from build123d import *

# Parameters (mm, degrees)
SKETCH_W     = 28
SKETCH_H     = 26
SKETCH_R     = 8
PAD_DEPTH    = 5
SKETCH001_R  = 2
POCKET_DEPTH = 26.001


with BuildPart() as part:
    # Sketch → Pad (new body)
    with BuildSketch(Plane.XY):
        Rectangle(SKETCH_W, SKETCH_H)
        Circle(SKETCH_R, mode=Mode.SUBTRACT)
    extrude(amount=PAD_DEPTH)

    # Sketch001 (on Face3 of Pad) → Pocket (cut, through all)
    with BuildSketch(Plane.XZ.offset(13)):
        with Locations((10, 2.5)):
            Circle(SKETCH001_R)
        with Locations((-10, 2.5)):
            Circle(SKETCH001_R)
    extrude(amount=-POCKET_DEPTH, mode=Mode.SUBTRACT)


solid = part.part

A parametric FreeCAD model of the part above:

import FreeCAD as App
import Part
import Sketcher

V = App.Vector
Q = App.Units.Quantity

doc = App.newDocument("Part")
params = doc.addObject("Spreadsheet::Sheet", "Params")
for row, (alias, value) in enumerate([
    ("sketch1_diameter", "16 mm"),
    ("sketch1_width", "28 mm"),
    ("sketch1_height", "26 mm"),
    ("pad1_length", "5 mm"),
    ("sketch2_diameter", "4 mm"),
], start=1):
    params.set(f"A{row}", alias)
    params.set(f"B{row}", "=" + value)
    params.setAlias(f"B{row}", alias)

body = doc.addObject("PartDesign::Body", "Body")

# Sketch on XY plane
sketch1 = body.newObject("Sketcher::SketchObject", "Sketch")
sketch1.AttachmentSupport = (doc.getObject("XY_Plane"), [""])
sketch1.MapMode = "FlatFace"
sketch1.addGeometry([
    Part.LineSegment(V(-14, 13, 0), V(-14, -13, 0)),  # 0
    Part.LineSegment(V(-14, -13, 0), V(14, -13, 0)),  # 1
    Part.LineSegment(V(14, -13, 0), V(14, 13, 0)),  # 2
    Part.LineSegment(V(14, 13, 0), V(-14, 13, 0)),  # 3
    Part.Circle(V(0, 0, 0), V(0, 0, 1), 8),  # 4
], False)
sketch1.addConstraint([
    Sketcher.Constraint("Coincident", 0, 2, 1, 1),
    Sketcher.Constraint("Coincident", 1, 2, 2, 1),
    Sketcher.Constraint("Coincident", 2, 2, 3, 1),
    Sketcher.Constraint("Coincident", 3, 2, 0, 1),
    Sketcher.Constraint("Vertical", 0),
    Sketcher.Constraint("Horizontal", 1),
    Sketcher.Constraint("Vertical", 2),
    Sketcher.Constraint("Horizontal", 3),
    Sketcher.Constraint("Coincident", 4, 3, -1, 1),
    Sketcher.Constraint("Symmetric", 0, 2, 2, 2, -1, 1),
    Sketcher.Constraint("Diameter", 4, Q("16 mm")),
    Sketcher.Constraint("DistanceX", 1, 1, 1, 2, Q("28 mm")),
    Sketcher.Constraint("DistanceY", 0, 2, 0, 1, Q("26 mm")),
])
sketch1.setExpression("Constraints[10]", "Params.sketch1_diameter")
sketch1.setExpression("Constraints[11]", "Params.sketch1_width")
sketch1.setExpression("Constraints[12]", "Params.sketch1_height")
pad1 = body.newObject("PartDesign::Pad", "Pad")
pad1.Profile = sketch1
pad1.setExpression("Length", "Params.pad1_length")

# Sketch on XZ plane
sketch2 = body.newObject("Sketcher::SketchObject", "Sketch001")
sketch2.AttachmentSupport = (doc.getObject("XZ_Plane"), [""])
sketch2.MapMode = "FlatFace"
sketch2.AttachmentOffset = App.Placement(V(0, 0, 13), App.Rotation())
sketch2.addGeometry([
    Part.Circle(V(10, 2.5, 0), V(0, 0, 1), 2),
    Part.Circle(V(-10, 2.5, 0), V(0, 0, 1), 2),
], False)
sketch2.addConstraint([
    Sketcher.Constraint("Equal", 0, 1),
    Sketcher.Constraint("Symmetric", 0, 3, 1, 3, -2),
    Sketcher.Constraint("Diameter", 0, Q("4 mm")),
    Sketcher.Constraint("DistanceX", -1, 1, 0, 3, Q("10 mm")),
    Sketcher.Constraint("DistanceY", -1, 1, 0, 3, Q("2.5 mm")),
])
sketch2.setExpression("Constraints[2]", "Params.sketch2_diameter")
pocket1 = body.newObject("PartDesign::Pocket", "Pocket")
pocket1.Profile = sketch2
pocket1.Type = "ThroughAll"

doc.recompute()
